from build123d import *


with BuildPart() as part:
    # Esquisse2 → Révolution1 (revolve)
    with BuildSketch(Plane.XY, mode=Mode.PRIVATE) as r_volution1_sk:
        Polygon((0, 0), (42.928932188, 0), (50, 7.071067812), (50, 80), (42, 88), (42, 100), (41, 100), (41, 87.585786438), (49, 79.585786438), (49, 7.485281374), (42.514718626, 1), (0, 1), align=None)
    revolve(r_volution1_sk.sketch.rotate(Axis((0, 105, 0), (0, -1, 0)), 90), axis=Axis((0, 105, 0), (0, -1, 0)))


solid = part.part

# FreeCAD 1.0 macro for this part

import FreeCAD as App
import Part
import Sketcher

V = App.Vector
Q = App.Units.Quantity


def add_polygon(sketch, points):
    """Adds a closed chain of lines whose ends are joined by coincident constraints."""
    first, n = sketch.GeometryCount, len(points)
    for a, b in zip(points, points[1:] + points[:1]):
        sketch.addGeometry(Part.LineSegment(App.Vector(*a, 0), App.Vector(*b, 0)), False)
    for i in range(n):
        sketch.addConstraint(Sketcher.Constraint("Coincident", first + i, 2, first + (i + 1) % n, 1))

doc = App.newDocument("Part")
body = doc.addObject("PartDesign::Body", "Body")

# Sketch on XY plane
sketch1 = doc.addObject("Sketcher::SketchObject", "Sketch")
body.addObject(sketch1)
sketch1.AttachmentSupport = (doc.XY_Plane, [""])
sketch1.MapMode = "FlatFace"
add_polygon(sketch1, [(0, 0), (42.9, 0), (50, 7.1), (50, 80), (42, 88), (42, 100), (41, 100), (41, 87.6), (49, 79.6), (49, 7.5), (42.5, 1), (0, 1)])  # lines 0-11
sketch1.addConstraint([
    Sketcher.Constraint("Horizontal", 0),
    Sketcher.Constraint("Vertical", 2),
    Sketcher.Constraint("Vertical", 4),
    Sketcher.Constraint("Horizontal", 5),
    Sketcher.Constraint("Vertical", 6),
    Sketcher.Constraint("Vertical", 8),
    Sketcher.Constraint("Horizontal", 10),
    Sketcher.Constraint("Vertical", 11),
    Sketcher.Constraint("Coincident", 11, 2, -1, 1),
    Sketcher.Constraint("Perpendicular", 1, 3),
    Sketcher.Constraint("Parallel", 3, 7),
    Sketcher.Constraint("Perpendicular", 7, 9),
    Sketcher.Constraint("Equal", 5, 11),
    Sketcher.Constraint("Equal", 3, 7),
    Sketcher.Constraint("DistanceX", 5, 2, 5, 1, Q("1 mm")),
    Sketcher.Constraint("DistanceY", 4, 1, 4, 2, Q("12 mm")),
    Sketcher.Constraint("Angle", 1, Q("45 deg")),
    Sketcher.Constraint("Distance", 1, Q("10 mm")),
    Sketcher.Constraint("DistanceX", -1, 1, 1, 2, Q("50 mm")),
    Sketcher.Constraint("DistanceY", -1, 1, 2, 2, Q("80 mm")),
    Sketcher.Constraint("DistanceX", -1, 1, 3, 2, Q("42 mm")),
    Sketcher.Constraint("DistanceX", 10, 2, 10, 1, Q("42.514719 mm")),
    Sketcher.Constraint("DistanceY", 6, 2, 6, 1, Q("12.414214 mm")),
])
revolution = doc.addObject("PartDesign::Revolution", "Revolution")
body.addObject(revolution)
revolution.Profile = sketch1
revolution.ReferenceAxis = (sketch1, ["V_Axis"])
revolution.Angle = 360

doc.recompute()
